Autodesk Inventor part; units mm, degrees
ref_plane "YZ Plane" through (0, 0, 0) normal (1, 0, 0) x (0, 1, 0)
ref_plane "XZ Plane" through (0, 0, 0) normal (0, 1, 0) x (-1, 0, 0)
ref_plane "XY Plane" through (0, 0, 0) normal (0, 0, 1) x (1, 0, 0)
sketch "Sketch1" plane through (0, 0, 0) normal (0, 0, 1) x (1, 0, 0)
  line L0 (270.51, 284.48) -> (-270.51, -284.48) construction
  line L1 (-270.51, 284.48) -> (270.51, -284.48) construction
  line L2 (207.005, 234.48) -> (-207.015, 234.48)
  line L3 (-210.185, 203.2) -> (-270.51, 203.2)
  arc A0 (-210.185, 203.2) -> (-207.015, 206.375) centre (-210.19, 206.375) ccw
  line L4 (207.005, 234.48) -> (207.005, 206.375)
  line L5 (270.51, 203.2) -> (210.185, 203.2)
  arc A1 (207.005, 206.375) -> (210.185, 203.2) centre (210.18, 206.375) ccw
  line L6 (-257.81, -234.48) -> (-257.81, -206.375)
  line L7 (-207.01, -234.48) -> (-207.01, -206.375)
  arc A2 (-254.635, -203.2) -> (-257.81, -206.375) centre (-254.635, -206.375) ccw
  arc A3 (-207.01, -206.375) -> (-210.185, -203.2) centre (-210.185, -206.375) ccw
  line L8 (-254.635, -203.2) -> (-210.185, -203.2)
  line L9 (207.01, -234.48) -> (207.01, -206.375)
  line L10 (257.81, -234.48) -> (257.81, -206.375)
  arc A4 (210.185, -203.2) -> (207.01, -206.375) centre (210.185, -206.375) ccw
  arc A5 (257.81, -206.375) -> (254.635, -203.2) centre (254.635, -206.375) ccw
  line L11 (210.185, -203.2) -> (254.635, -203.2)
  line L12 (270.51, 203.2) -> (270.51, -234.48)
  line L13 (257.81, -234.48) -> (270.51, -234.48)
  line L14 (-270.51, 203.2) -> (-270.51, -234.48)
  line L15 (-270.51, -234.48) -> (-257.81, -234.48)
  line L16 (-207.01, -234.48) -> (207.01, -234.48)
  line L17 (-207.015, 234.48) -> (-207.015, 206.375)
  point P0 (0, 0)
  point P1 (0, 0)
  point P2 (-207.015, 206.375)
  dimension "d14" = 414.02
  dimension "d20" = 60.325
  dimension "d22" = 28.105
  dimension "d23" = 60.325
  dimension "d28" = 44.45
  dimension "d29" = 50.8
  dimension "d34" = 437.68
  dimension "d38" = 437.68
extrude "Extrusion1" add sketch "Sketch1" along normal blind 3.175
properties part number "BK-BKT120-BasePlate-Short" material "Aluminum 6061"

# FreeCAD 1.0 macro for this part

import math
import FreeCAD as App
import Part
import Sketcher

V = App.Vector
Q = App.Units.Quantity

doc = App.newDocument("Part")
params = doc.addObject("Spreadsheet::Sheet", "Params")
for row, (alias, value) in enumerate([
    ("sketch1_width", "16.3 in"),
    ("sketch1_width2", "1.75 in"),
    ("sketch1_width3", "2.375 in"),
    ("pad1_length", "0.125 in"),
], start=1):
    params.set(f"A{row}", alias)
    params.set(f"B{row}", "=" + value)
    params.setAlias(f"B{row}", alias)

body = doc.addObject("PartDesign::Body", "Body")

# Sketch on XY plane
sketch1 = doc.addObject("Sketcher::SketchObject", "Sketch")
body.addObject(sketch1)
sketch1.AttachmentSupport = (doc.XY_Plane, [""])
sketch1.MapMode = "FlatFace"
sketch1.addGeometry([
    Part.LineSegment(V(207, 206.4, 0), V(207, 234.5, 0)),  # 0
    Part.LineSegment(V(207, 234.5, 0), V(-207, 234.5, 0)),  # 1
    Part.LineSegment(V(-207, 234.5, 0), V(-207, 206.4, 0)),  # 2
    Part.ArcOfCircle(Part.Circle(V(-210.2, 206.4, 0), V(0, 0, 1), 3.2), math.radians(-90), math.radians(0)),  # 3
    Part.LineSegment(V(-210.2, 203.2, 0), V(-270.5, 203.2, 0)),  # 4
    Part.LineSegment(V(-270.5, 203.2, 0), V(-270.5, -234.5, 0)),  # 5
    Part.LineSegment(V(-270.5, -234.5, 0), V(-257.8, -234.5, 0)),  # 6
    Part.LineSegment(V(-257.8, -234.5, 0), V(-257.8, -206.4, 0)),  # 7
    Part.ArcOfCircle(Part.Circle(V(-254.6, -206.4, 0), V(0, 0, 1), 3.2), math.radians(90), math.radians(180)),  # 8
    Part.LineSegment(V(-254.6, -203.2, 0), V(-210.2, -203.2, 0)),  # 9
    Part.ArcOfCircle(Part.Circle(V(-210.2, -206.4, 0), V(0, 0, 1), 3.2), math.radians(0), math.radians(90)),  # 10
    Part.LineSegment(V(-207, -206.4, 0), V(-207, -234.5, 0)),  # 11
    Part.LineSegment(V(-207, -234.5, 0), V(207, -234.5, 0)),  # 12
    Part.LineSegment(V(207, -234.5, 0), V(207, -206.4, 0)),  # 13
    Part.ArcOfCircle(Part.Circle(V(210.2, -206.4, 0), V(0, 0, 1), 3.2), math.radians(90), math.radians(180)),  # 14
    Part.LineSegment(V(210.2, -203.2, 0), V(254.6, -203.2, 0)),  # 15
    Part.ArcOfCircle(Part.Circle(V(254.6, -206.4, 0), V(0, 0, 1), 3.2), math.radians(0), math.radians(90)),  # 16
    Part.LineSegment(V(257.8, -206.4, 0), V(257.8, -234.5, 0)),  # 17
    Part.LineSegment(V(257.8, -234.5, 0), V(270.5, -234.5, 0)),  # 18
    Part.LineSegment(V(270.5, -234.5, 0), V(270.5, 203.2, 0)),  # 19
    Part.LineSegment(V(270.5, 203.2, 0), V(210.2, 203.2, 0)),  # 20
    Part.ArcOfCircle(Part.Circle(V(210.2, 206.4, 0), V(0, 0, 1), 3.2), math.radians(180), math.radians(270)),  # 21
], False)
sketch1.addConstraint([
    Sketcher.Constraint("Coincident", 0, 2, 1, 1),
    Sketcher.Constraint("Coincident", 1, 2, 2, 1),
    Sketcher.Constraint("Tangent", 2, 2, 3, 2),
    Sketcher.Constraint("Coincident", 3, 1, 4, 1),
    Sketcher.Constraint("Coincident", 4, 2, 5, 1),
    Sketcher.Constraint("Coincident", 5, 2, 6, 1),
    Sketcher.Constraint("Coincident", 6, 2, 7, 1),
    Sketcher.Constraint("Tangent", 7, 2, 8, 2),
    Sketcher.Constraint("Tangent", 8, 1, 9, 1),
    Sketcher.Constraint("Tangent", 9, 2, 10, 2),
    Sketcher.Constraint("Tangent", 10, 1, 11, 1),
    Sketcher.Constraint("Coincident", 11, 2, 12, 1),
    Sketcher.Constraint("Coincident", 12, 2, 13, 1),
    Sketcher.Constraint("Tangent", 13, 2, 14, 2),
    Sketcher.Constraint("Tangent", 14, 1, 15, 1),
    Sketcher.Constraint("Tangent", 15, 2, 16, 2),
    Sketcher.Constraint("Tangent", 16, 1, 17, 1),
    Sketcher.Constraint("Coincident", 17, 2, 18, 1),
    Sketcher.Constraint("Coincident", 18, 2, 19, 1),
    Sketcher.Constraint("Coincident", 19, 2, 20, 1),
    Sketcher.Constraint("Coincident", 20, 2, 21, 2),
    Sketcher.Constraint("Tangent", 21, 1, 0, 1),
    Sketcher.Constraint("Vertical", 0),
    Sketcher.Constraint("Horizontal", 1),
    Sketcher.Constraint("Vertical", 2),
    Sketcher.Constraint("Horizontal", 4),
    Sketcher.Constraint("Vertical", 5),
    Sketcher.Constraint("Horizontal", 6),
    Sketcher.Constraint("Vertical", 7),
    Sketcher.Constraint("Horizontal", 9),
    Sketcher.Constraint("Vertical", 11),
    Sketcher.Constraint("Horizontal", 12),
    Sketcher.Constraint("Vertical", 13),
    Sketcher.Constraint("Horizontal", 15),
    Sketcher.Constraint("Vertical", 17),
    Sketcher.Constraint("Horizontal", 18),
    Sketcher.Constraint("Vertical", 19),
    Sketcher.Constraint("Horizontal", 20),
    Sketcher.Constraint("Equal", 3, 8),
    Sketcher.Constraint("Equal", 8, 10),
    Sketcher.Constraint("Equal", 10, 14),
    Sketcher.Constraint("Equal", 14, 16),
    Sketcher.Constraint("Equal", 16, 21),
    Sketcher.Constraint("Symmetric", 3, 1, 14, 1, -1, 1),
    Sketcher.Constraint("Symmetric", 9, 2, 20, 2, -1, 1),
    Sketcher.Constraint("Symmetric", 10, 3, 14, 3, -2),
    Sketcher.Constraint("Symmetric", 6, 2, 17, 2, -2),
    Sketcher.Constraint("Horizontal", 6, 2, 11, 2),
    Sketcher.Constraint("Equal", 1, 12),
    Sketcher.Constraint("Equal", 6, 18),
    Sketcher.Constraint("Equal", 2, 7),
    Sketcher.Constraint("DistanceX", 1, 2, 1, 1, Q("16.3 in")),
    Sketcher.Constraint("DistanceX", 7, 2, 10, 1, Q("2 in")),
    Sketcher.Constraint("DistanceX", 9, 1, 9, 2, Q("1.75 in")),
    Sketcher.Constraint("DistanceX", 4, 2, 4, 1, Q("2.375 in")),
    Sketcher.Constraint("DistanceY", 0, 1, 0, 2, Q("1.1065 in")),
    Sketcher.Constraint("DistanceY", 5, 2, 5, 1, Q("17.2315 in")),
    Sketcher.Constraint("DistanceX", 3, 3, -1, 1, Q("8.2752 in")),
])
sketch1.setExpression("Constraints[51]", "Params.sketch1_width")
sketch1.setExpression("Constraints[53]", "Params.sketch1_width2")
sketch1.setExpression("Constraints[54]", "Params.sketch1_width3")
pad1 = doc.addObject("PartDesign::Pad", "Pad")
body.addObject(pad1)
pad1.Profile = sketch1
pad1.setExpression("Length", "Params.pad1_length")

doc.recompute()
